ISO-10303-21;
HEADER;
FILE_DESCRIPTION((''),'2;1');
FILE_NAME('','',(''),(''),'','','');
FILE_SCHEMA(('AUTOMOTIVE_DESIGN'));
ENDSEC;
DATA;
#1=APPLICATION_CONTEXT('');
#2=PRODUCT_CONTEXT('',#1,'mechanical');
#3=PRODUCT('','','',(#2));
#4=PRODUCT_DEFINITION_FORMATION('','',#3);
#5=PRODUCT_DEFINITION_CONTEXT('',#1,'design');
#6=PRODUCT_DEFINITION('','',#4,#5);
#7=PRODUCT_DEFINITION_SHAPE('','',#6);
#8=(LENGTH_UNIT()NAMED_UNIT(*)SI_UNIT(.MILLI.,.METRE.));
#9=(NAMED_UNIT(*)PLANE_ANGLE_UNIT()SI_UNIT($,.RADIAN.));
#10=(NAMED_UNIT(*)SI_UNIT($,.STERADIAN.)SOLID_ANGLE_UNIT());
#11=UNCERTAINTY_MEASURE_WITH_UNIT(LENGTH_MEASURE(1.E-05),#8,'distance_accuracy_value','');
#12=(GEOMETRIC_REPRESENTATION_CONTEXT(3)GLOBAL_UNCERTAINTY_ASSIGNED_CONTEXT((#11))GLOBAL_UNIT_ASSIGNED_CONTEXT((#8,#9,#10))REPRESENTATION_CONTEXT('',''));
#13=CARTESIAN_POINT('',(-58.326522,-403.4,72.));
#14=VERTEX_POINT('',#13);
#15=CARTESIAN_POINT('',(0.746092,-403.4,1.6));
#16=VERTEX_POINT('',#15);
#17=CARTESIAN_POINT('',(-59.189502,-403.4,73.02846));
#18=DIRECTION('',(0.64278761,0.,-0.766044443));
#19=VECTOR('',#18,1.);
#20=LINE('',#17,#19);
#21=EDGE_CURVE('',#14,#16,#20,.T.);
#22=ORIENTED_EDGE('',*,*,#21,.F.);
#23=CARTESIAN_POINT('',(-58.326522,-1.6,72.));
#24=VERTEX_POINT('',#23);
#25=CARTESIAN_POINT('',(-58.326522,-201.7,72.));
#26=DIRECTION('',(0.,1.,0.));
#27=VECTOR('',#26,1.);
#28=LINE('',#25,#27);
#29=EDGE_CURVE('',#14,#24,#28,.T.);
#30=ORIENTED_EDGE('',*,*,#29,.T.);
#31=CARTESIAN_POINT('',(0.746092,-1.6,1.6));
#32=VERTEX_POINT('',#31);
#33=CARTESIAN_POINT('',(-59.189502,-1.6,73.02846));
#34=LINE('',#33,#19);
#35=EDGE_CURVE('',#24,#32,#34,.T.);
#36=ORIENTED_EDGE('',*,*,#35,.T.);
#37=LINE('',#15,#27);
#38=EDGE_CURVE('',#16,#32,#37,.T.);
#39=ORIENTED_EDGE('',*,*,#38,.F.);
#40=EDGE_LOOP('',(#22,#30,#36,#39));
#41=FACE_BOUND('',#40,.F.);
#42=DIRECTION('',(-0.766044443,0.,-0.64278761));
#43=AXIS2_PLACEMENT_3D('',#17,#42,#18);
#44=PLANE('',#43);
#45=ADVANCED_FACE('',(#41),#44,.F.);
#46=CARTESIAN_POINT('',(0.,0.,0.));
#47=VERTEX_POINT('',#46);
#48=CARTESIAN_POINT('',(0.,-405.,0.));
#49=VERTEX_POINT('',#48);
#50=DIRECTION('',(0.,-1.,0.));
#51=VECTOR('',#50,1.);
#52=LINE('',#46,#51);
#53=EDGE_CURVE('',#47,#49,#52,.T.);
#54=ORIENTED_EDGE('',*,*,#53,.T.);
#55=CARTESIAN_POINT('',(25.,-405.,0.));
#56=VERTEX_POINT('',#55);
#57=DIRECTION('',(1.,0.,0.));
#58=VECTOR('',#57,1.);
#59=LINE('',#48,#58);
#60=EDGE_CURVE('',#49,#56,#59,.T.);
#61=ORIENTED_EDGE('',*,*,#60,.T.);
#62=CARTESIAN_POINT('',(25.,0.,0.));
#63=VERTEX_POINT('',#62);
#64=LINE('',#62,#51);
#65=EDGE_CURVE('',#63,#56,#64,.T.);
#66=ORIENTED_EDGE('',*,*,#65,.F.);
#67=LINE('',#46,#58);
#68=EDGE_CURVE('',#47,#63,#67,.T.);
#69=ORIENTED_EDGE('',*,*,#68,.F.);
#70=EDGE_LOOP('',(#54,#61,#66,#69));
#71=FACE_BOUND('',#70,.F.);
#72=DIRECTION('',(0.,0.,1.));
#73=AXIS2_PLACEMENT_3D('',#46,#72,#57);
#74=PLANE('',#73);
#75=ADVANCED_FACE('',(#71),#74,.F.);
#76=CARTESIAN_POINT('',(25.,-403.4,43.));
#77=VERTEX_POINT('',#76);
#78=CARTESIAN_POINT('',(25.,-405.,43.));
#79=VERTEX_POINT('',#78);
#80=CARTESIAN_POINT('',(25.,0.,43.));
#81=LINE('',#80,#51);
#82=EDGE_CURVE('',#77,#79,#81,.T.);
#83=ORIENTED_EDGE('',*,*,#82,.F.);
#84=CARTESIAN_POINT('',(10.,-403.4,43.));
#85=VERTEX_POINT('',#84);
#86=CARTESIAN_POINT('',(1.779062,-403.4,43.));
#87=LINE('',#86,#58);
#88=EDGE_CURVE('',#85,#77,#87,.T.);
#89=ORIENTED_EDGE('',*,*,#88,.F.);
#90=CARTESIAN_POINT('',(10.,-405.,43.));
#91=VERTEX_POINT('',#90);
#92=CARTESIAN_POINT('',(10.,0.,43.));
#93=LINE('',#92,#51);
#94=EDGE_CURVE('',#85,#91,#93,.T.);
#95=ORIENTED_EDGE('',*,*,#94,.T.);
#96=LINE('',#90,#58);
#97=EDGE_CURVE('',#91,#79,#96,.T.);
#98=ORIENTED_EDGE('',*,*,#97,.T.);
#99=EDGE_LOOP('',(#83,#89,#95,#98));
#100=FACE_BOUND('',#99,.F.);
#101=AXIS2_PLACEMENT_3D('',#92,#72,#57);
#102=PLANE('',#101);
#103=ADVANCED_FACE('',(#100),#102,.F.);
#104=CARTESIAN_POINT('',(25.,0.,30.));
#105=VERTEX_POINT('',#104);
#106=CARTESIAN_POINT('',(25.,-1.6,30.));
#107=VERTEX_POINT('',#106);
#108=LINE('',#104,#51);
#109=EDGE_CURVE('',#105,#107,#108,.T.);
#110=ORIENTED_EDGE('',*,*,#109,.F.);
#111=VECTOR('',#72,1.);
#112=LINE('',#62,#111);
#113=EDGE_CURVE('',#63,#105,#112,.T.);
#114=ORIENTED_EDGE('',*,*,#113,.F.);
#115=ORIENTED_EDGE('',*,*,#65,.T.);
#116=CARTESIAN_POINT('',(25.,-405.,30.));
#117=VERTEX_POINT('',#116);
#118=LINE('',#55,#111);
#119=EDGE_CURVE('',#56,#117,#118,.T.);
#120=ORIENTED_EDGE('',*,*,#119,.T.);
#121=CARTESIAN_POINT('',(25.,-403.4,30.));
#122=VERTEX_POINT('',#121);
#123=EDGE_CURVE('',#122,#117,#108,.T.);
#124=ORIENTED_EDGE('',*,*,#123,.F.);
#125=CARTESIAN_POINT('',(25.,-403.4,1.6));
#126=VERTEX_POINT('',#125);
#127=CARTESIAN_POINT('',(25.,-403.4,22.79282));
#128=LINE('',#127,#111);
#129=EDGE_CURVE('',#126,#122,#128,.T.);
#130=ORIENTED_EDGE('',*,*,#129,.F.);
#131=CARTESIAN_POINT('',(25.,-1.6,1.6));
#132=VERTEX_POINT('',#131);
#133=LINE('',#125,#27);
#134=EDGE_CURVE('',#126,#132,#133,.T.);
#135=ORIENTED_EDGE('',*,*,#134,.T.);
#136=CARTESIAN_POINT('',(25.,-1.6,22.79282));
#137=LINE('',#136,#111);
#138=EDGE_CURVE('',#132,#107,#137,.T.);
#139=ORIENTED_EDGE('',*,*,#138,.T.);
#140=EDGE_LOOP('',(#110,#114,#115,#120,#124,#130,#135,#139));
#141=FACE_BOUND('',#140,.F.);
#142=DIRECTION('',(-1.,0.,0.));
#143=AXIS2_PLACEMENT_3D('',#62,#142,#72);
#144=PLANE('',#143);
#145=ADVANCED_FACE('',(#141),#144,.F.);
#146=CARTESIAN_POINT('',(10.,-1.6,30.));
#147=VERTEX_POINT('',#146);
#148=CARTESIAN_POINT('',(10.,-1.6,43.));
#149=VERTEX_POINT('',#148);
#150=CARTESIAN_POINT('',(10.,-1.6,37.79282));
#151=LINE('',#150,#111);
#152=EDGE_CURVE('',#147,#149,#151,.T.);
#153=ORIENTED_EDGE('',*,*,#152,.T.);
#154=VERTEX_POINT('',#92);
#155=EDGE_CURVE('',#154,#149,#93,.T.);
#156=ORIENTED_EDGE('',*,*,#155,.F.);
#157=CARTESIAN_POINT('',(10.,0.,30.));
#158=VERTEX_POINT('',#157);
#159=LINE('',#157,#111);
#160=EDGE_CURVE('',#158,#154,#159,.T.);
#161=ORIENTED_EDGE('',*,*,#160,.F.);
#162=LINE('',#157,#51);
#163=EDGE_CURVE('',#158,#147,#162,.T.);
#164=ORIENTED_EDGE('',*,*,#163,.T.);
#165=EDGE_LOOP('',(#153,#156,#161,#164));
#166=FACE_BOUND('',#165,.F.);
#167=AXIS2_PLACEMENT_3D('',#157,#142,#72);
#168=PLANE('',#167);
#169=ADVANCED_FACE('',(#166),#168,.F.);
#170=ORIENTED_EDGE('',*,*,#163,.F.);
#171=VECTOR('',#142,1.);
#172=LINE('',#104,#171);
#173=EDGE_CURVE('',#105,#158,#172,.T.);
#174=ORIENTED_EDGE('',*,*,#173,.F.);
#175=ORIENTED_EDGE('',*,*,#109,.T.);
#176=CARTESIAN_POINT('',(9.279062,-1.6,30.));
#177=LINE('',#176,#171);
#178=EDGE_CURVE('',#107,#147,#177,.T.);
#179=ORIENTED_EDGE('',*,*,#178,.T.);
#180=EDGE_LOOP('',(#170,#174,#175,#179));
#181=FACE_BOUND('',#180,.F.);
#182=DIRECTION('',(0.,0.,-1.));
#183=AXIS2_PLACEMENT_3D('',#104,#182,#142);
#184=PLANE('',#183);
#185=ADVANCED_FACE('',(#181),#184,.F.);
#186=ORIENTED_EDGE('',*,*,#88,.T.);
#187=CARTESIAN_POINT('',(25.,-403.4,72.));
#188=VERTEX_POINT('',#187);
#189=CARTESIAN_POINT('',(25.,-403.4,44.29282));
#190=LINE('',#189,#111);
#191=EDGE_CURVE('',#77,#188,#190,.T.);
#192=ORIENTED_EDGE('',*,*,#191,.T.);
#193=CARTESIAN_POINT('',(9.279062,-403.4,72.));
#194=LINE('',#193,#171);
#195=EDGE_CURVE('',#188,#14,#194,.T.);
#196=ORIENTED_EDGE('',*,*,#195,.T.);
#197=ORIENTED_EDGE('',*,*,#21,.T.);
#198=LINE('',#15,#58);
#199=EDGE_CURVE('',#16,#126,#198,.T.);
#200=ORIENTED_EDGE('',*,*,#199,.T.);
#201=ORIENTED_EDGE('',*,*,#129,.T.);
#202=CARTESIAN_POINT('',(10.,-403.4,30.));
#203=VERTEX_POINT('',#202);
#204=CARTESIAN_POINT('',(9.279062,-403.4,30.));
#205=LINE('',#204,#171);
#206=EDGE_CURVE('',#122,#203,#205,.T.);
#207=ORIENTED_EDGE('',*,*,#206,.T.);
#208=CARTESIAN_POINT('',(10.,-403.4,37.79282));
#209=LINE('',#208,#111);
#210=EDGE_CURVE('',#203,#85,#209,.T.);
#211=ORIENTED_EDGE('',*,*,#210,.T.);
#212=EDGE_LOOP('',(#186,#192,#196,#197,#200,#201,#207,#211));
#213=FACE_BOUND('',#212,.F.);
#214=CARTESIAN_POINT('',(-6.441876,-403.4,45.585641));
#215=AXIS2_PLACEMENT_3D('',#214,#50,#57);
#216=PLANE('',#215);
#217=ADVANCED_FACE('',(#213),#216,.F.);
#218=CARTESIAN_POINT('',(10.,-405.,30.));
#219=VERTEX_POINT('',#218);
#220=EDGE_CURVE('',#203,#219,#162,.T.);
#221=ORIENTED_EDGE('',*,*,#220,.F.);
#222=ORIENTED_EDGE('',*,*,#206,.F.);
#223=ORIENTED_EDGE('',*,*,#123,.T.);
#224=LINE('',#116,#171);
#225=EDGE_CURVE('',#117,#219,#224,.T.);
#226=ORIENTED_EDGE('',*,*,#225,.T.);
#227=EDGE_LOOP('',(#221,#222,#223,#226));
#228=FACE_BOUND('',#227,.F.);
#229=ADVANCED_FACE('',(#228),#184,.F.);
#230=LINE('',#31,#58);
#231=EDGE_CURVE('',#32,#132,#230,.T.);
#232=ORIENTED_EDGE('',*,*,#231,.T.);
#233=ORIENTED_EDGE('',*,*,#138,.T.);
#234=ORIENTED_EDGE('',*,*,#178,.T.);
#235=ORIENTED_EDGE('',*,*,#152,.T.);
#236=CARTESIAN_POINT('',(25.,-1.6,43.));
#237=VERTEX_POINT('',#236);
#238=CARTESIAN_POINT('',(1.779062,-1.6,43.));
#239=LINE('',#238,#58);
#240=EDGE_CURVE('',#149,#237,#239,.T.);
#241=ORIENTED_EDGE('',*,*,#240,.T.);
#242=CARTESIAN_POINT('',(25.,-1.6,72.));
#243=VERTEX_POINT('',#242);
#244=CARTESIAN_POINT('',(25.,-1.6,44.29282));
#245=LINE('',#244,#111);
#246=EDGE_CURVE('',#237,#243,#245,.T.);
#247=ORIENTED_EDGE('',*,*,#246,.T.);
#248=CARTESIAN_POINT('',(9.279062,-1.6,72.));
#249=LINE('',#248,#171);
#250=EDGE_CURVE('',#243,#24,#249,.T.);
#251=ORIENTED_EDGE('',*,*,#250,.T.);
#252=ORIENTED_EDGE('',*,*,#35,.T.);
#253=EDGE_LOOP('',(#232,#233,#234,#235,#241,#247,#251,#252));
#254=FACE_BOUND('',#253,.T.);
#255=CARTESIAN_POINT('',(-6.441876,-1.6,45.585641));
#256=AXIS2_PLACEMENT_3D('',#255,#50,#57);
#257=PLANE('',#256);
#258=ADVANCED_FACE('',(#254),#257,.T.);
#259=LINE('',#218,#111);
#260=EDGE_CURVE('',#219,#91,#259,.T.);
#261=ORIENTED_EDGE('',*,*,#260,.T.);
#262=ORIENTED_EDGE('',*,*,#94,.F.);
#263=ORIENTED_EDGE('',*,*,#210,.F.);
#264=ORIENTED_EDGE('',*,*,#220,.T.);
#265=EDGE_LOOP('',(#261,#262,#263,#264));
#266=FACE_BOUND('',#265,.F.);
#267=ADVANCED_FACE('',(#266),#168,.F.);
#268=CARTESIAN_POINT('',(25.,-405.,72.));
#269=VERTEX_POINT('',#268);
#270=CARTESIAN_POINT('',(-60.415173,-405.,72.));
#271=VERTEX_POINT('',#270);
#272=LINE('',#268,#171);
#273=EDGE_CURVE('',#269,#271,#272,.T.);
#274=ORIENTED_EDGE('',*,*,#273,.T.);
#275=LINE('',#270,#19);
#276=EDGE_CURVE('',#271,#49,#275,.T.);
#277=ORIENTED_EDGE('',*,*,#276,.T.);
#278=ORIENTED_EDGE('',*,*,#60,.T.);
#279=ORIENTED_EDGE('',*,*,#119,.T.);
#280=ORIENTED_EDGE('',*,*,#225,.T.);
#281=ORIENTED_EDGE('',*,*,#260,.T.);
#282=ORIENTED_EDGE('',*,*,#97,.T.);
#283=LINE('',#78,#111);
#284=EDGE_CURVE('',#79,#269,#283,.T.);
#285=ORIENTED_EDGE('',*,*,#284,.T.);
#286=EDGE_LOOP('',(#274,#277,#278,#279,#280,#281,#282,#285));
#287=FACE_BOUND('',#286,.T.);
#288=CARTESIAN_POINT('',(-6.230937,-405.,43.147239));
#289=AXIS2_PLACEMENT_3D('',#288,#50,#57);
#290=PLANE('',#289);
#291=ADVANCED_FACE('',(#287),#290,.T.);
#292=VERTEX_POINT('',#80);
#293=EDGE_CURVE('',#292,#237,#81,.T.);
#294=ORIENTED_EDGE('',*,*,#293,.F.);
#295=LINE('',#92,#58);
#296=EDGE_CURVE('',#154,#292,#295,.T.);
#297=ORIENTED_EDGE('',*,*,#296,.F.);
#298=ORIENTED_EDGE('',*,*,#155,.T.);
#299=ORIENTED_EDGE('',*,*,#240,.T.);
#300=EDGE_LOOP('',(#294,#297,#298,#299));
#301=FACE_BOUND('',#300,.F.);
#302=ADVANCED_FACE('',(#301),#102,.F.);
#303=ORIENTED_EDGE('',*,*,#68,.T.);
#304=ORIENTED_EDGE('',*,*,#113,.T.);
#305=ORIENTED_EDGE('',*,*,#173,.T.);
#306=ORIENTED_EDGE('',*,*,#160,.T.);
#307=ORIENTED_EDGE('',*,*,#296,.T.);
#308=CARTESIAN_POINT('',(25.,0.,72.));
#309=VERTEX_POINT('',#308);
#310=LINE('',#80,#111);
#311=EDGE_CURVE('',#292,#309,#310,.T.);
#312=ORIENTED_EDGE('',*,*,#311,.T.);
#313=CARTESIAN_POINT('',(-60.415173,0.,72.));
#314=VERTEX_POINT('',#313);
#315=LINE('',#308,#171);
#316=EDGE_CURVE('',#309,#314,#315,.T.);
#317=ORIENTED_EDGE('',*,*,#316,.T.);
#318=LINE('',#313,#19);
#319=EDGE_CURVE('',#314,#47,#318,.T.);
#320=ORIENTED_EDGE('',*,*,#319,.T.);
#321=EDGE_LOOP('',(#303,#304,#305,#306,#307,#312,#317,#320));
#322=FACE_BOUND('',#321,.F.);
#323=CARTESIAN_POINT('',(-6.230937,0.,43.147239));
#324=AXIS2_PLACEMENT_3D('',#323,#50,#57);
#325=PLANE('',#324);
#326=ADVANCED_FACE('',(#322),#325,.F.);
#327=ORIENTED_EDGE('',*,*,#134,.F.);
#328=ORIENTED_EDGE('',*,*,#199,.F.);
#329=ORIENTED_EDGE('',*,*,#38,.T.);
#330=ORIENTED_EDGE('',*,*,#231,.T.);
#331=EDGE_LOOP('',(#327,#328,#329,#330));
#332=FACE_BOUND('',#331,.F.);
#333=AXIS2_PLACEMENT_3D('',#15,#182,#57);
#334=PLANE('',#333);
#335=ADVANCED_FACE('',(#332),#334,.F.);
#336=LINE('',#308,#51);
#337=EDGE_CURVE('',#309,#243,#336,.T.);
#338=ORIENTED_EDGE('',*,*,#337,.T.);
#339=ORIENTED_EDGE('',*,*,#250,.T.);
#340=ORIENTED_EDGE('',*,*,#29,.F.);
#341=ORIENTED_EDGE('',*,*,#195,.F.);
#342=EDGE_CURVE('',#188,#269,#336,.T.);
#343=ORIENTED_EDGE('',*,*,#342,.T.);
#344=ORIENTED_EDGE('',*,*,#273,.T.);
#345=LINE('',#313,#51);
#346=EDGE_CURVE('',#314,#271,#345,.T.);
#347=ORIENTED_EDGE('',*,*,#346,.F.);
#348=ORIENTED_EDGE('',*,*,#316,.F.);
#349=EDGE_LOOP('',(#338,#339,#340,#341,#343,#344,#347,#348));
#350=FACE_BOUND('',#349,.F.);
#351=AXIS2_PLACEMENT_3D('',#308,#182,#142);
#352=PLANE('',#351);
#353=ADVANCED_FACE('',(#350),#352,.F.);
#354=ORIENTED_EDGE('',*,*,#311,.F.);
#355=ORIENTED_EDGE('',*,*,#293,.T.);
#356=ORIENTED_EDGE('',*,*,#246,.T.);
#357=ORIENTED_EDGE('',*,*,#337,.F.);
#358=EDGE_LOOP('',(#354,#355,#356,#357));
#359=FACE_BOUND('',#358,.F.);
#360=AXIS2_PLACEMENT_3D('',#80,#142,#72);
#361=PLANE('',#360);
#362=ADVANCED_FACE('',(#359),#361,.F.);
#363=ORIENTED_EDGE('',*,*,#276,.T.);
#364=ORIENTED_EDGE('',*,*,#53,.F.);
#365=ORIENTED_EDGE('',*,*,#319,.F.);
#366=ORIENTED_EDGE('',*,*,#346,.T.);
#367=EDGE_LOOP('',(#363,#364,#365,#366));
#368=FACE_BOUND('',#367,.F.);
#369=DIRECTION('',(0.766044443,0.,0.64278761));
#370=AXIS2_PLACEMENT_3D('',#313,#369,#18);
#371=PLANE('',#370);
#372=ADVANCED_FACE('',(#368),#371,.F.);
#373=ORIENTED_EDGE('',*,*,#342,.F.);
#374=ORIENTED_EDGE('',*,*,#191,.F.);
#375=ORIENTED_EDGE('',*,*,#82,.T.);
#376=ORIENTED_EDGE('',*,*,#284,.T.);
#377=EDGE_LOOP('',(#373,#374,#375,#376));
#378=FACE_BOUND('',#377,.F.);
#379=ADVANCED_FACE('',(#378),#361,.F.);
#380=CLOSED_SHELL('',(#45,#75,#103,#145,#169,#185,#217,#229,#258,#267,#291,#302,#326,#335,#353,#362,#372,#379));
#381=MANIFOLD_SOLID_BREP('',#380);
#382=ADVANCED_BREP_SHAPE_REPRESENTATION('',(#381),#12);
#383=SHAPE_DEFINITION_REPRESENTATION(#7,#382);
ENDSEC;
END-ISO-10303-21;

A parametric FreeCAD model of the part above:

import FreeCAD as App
import Part
import Sketcher

V = App.Vector
Q = App.Units.Quantity

doc = App.newDocument("Part")
params = doc.addObject("Spreadsheet::Sheet", "Params")
for row, (alias, value) in enumerate([
    ("sketch1_width", "25 mm"),
    ("sketch1_width2", "15 mm"),
    ("sketch1_height", "30 mm"),
    ("sketch1_height2", "13 mm"),
    ("sketch1_height3", "29 mm"),
    ("pad1_length", "405 mm"),
    ("pocket1_length", "401.8 mm"),
], start=1):
    params.set(f"A{row}", alias)
    params.set(f"B{row}", "=" + value)
    params.setAlias(f"B{row}", alias)

body = doc.addObject("PartDesign::Body", "Body")

# Sketch on XZ plane
sketch1 = body.newObject("Sketcher::SketchObject", "Sketch")
sketch1.AttachmentSupport = (doc.getObject("XZ_Plane"), [""])
sketch1.MapMode = "FlatFace"
sketch1.addGeometry(Part.LineSegment(V(-60, 72, 0), V(0, 0, 0)), False)
sketch1.addGeometry(Part.LineSegment(V(0, 0, 0), V(25, 0, 0)), False)
sketch1.addGeometry(Part.LineSegment(V(25, 0, 0), V(25, 30, 0)), False)
sketch1.addGeometry(Part.LineSegment(V(25, 30, 0), V(10, 30, 0)), False)
sketch1.addGeometry(Part.LineSegment(V(10, 30, 0), V(10, 43, 0)), False)
sketch1.addGeometry(Part.LineSegment(V(10, 43, 0), V(25, 43, 0)), False)
sketch1.addGeometry(Part.LineSegment(V(25, 43, 0), V(25, 72, 0)), False)
sketch1.addGeometry(Part.LineSegment(V(25, 72, 0), V(-60, 72, 0)), False)
sketch1.addConstraint(Sketcher.Constraint("Coincident", 0, 2, 1, 1))
sketch1.addConstraint(Sketcher.Constraint("Coincident", 1, 2, 2, 1))
sketch1.addConstraint(Sketcher.Constraint("Coincident", 2, 2, 3, 1))
sketch1.addConstraint(Sketcher.Constraint("Coincident", 3, 2, 4, 1))
sketch1.addConstraint(Sketcher.Constraint("Coincident", 4, 2, 5, 1))
sketch1.addConstraint(Sketcher.Constraint("Coincident", 5, 2, 6, 1))
sketch1.addConstraint(Sketcher.Constraint("Coincident", 6, 2, 7, 1))
sketch1.addConstraint(Sketcher.Constraint("Coincident", 7, 2, 0, 1))
sketch1.addConstraint(Sketcher.Constraint("Horizontal", 1))
sketch1.addConstraint(Sketcher.Constraint("Vertical", 2))
sketch1.addConstraint(Sketcher.Constraint("Horizontal", 3))
sketch1.addConstraint(Sketcher.Constraint("Vertical", 4))
sketch1.addConstraint(Sketcher.Constraint("Horizontal", 5))
sketch1.addConstraint(Sketcher.Constraint("Vertical", 6))
sketch1.addConstraint(Sketcher.Constraint("Horizontal", 7))
sketch1.addConstraint(Sketcher.Constraint("Coincident", 0, 2, -1, 1))
sketch1.addConstraint(Sketcher.Constraint("Vertical", 2, 2, 5, 2))
sketch1.addConstraint(Sketcher.Constraint("DistanceX", 1, 1, 1, 2, Q("25 mm")))
sketch1.addConstraint(Sketcher.Constraint("DistanceX", 3, 2, 3, 1, Q("15 mm")))
sketch1.addConstraint(Sketcher.Constraint("DistanceY", 2, 1, 2, 2, Q("30 mm")))
sketch1.addConstraint(Sketcher.Constraint("DistanceY", 4, 1, 4, 2, Q("13 mm")))
sketch1.addConstraint(Sketcher.Constraint("DistanceY", 6, 1, 6, 2, Q("29 mm")))
sketch1.addConstraint(Sketcher.Constraint("Angle", 0, Q("-50 deg")))
sketch1.setExpression("Constraints[17]", "Params.sketch1_width")
sketch1.setExpression("Constraints[18]", "Params.sketch1_width2")
sketch1.setExpression("Constraints[19]", "Params.sketch1_height")
sketch1.setExpression("Constraints[20]", "Params.sketch1_height2")
sketch1.setExpression("Constraints[21]", "Params.sketch1_height3")
pad1 = body.newObject("PartDesign::Pad", "Pad")
pad1.Profile = sketch1
pad1.setExpression("Length", "Params.pad1_length")

# Sketch on XZ plane
sketch2 = body.newObject("Sketcher::SketchObject", "Sketch001")
sketch2.AttachmentSupport = (doc.getObject("XZ_Plane"), [""])
sketch2.MapMode = "FlatFace"
sketch2.AttachmentOffset = App.Placement(V(0, 0, 403.4), App.Rotation())
sketch2.addGeometry(Part.LineSegment(V(29, 73, 0), V(-59, 73, 0)), False)
sketch2.addGeometry(Part.LineSegment(V(-59, 73, 0), V(1, 2, 0)), False)
sketch2.addGeometry(Part.LineSegment(V(1, 2, 0), V(25, 2, 0)), False)
sketch2.addGeometry(Part.LineSegment(V(25, 2, 0), V(29, 73, 0)), False)
sketch2.addConstraint(Sketcher.Constraint("Coincident", 0, 2, 1, 1))
sketch2.addConstraint(Sketcher.Constraint("Coincident", 1, 2, 2, 1))
sketch2.addConstraint(Sketcher.Constraint("Coincident", 2, 2, 3, 1))
sketch2.addConstraint(Sketcher.Constraint("Coincident", 3, 2, 0, 1))
sketch2.addConstraint(Sketcher.Constraint("Horizontal", 0))
sketch2.addConstraint(Sketcher.Constraint("Horizontal", 2))
sketch2.addConstraint(Sketcher.Constraint("Angle", 1, Q("-50 deg")))
sketch2.addConstraint(Sketcher.Constraint("DistanceX", -1, 1, 2, 2, Q("25 mm")))
sketch2.addConstraint(Sketcher.Constraint("DistanceY", -1, 1, 1, 2, Q("1.6 mm")))
sketch2.addConstraint(Sketcher.Constraint("DistanceX", 0, 2, 0, 1, Q("88.547367 mm")))
sketch2.addConstraint(Sketcher.Constraint("DistanceX", 2, 1, 2, 2, Q("24.253908 mm")))
sketch2.addConstraint(Sketcher.Constraint("DistanceY", -1, 1, 0, 2, Q("73.02846 mm")))
pocket1 = body.newObject("PartDesign::Pocket", "Pocket")
pocket1.Profile = sketch2
pocket1.setExpression("Length", "Params.pocket1_length")

doc.recompute()
